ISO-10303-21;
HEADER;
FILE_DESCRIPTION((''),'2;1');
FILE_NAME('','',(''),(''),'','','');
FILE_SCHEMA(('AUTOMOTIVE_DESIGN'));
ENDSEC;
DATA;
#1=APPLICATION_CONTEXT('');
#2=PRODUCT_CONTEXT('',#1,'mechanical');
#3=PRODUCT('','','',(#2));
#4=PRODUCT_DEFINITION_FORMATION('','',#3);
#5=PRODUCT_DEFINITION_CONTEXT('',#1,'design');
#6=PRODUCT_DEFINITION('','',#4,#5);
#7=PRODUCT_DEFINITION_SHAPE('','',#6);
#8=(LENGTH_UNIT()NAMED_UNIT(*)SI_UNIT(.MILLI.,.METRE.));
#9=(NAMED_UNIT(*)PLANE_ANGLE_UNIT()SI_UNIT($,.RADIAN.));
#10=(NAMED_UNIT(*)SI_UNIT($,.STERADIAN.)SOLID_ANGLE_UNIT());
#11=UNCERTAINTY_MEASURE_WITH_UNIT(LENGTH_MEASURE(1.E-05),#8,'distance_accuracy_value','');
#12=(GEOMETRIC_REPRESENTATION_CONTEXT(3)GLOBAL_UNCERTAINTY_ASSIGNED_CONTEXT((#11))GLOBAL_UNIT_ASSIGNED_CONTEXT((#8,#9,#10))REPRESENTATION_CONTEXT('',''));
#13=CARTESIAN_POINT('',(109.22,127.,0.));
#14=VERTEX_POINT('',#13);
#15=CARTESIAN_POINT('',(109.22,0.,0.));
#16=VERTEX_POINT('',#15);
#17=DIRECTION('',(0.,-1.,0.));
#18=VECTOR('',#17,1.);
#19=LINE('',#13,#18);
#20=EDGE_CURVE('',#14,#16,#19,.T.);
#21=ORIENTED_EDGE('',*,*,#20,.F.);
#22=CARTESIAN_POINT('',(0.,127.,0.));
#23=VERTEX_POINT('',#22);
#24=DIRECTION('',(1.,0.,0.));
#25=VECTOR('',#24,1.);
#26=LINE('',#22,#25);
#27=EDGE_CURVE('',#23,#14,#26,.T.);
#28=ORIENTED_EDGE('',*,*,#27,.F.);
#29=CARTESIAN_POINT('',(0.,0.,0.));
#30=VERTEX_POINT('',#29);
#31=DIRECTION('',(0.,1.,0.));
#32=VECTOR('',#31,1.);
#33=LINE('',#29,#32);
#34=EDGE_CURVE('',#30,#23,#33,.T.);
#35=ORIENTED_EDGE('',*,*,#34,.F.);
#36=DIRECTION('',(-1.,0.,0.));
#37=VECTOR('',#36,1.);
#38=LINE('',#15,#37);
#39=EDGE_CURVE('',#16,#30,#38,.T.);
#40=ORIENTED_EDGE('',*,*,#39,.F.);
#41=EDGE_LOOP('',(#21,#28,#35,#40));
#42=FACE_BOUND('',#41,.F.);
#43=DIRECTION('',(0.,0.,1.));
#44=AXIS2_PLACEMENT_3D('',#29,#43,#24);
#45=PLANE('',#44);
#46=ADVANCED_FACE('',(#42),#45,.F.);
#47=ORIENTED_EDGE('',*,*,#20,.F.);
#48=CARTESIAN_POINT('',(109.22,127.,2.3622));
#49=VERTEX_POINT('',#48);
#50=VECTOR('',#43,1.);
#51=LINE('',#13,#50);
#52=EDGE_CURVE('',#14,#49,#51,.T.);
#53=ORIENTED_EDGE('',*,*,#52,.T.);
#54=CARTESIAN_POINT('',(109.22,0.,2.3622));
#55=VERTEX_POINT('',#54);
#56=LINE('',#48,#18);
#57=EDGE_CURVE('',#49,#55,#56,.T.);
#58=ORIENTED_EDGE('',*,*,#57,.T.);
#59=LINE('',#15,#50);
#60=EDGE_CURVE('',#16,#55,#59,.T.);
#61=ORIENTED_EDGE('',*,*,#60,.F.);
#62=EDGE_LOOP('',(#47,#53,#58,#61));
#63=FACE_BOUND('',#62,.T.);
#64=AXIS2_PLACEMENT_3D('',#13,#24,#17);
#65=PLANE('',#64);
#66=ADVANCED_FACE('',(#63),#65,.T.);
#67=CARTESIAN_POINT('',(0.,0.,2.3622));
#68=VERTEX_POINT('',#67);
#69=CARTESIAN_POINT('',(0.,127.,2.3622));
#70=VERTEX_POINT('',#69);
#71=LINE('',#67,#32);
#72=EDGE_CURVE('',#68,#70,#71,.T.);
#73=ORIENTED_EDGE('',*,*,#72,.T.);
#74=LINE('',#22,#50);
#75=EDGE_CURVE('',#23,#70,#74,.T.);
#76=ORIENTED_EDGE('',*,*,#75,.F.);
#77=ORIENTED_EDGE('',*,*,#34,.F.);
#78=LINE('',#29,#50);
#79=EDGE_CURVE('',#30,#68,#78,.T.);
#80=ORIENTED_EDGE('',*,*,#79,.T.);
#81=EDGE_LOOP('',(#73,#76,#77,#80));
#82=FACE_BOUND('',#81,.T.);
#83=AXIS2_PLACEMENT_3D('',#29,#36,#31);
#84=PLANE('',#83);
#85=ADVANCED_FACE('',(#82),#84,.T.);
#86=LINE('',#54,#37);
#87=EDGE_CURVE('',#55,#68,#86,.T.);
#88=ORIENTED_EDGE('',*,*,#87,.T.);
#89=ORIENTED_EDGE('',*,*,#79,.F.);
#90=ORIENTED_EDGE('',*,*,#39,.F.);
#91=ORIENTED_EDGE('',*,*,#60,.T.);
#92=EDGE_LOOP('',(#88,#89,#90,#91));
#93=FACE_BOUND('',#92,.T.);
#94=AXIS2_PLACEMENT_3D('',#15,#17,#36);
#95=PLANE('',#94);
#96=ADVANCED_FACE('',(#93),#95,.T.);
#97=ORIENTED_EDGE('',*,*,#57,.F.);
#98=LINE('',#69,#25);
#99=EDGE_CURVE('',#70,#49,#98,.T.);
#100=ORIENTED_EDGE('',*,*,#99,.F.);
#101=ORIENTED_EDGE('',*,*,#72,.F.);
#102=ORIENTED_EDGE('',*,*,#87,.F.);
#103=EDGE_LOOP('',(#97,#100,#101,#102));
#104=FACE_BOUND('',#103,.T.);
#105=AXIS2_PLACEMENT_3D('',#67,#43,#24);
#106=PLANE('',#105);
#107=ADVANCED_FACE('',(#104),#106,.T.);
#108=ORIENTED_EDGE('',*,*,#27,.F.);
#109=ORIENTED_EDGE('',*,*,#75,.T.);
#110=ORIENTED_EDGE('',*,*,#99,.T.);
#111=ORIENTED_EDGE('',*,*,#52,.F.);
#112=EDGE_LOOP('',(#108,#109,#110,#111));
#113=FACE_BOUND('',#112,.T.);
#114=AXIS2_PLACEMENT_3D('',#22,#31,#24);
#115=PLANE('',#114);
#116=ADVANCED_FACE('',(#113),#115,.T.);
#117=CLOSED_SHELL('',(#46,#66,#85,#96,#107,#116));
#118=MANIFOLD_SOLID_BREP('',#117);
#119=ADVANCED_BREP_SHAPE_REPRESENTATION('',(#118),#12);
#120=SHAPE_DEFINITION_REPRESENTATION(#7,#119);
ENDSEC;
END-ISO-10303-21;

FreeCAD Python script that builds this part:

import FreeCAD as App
import Part
import Sketcher
from FreeCAD import Vector
Q = App.Units.Quantity

doc = App.newDocument("Part")
params = doc.addObject("Spreadsheet::Sheet", "Params")
for row, (alias, value) in enumerate([
    ("sketch1_height", "5 in"),
    ("sketch1_width", "4.3 in"),
    ("pad1_length", "0.093 in"),
], start=1):
    params.set(f"A{row}", alias)
    params.set(f"B{row}", "=" + value)
    params.setAlias(f"B{row}", alias)

body = doc.addObject("PartDesign::Body", "Body")

# Sketch on XY plane
sketch1 = doc.addObject("Sketcher::SketchObject", "Sketch")
body.addObject(sketch1)
sketch1.AttachmentSupport = (doc.XY_Plane, [""])
sketch1.MapMode = "FlatFace"
sketch1.addGeometry(Part.LineSegment(Vector(0, 127, 0), Vector(0, 0, 0)), False)
sketch1.addGeometry(Part.LineSegment(Vector(0, 0, 0), Vector(109, 0, 0)), False)
sketch1.addGeometry(Part.LineSegment(Vector(109, 0, 0), Vector(109, 127, 0)), False)
sketch1.addGeometry(Part.LineSegment(Vector(109, 127, 0), Vector(0, 127, 0)), False)
sketch1.addConstraint(Sketcher.Constraint("Coincident", 0, 2, 1, 1))
sketch1.addConstraint(Sketcher.Constraint("Coincident", 1, 2, 2, 1))
sketch1.addConstraint(Sketcher.Constraint("Coincident", 2, 2, 3, 1))
sketch1.addConstraint(Sketcher.Constraint("Coincident", 3, 2, 0, 1))
sketch1.addConstraint(Sketcher.Constraint("Vertical", 0))
sketch1.addConstraint(Sketcher.Constraint("Horizontal", 1))
sketch1.addConstraint(Sketcher.Constraint("Vertical", 2))
sketch1.addConstraint(Sketcher.Constraint("Horizontal", 3))
sketch1.addConstraint(Sketcher.Constraint("Coincident", 0, 2, -1, 1))
sketch1.addConstraint(Sketcher.Constraint("DistanceY", 0, 2, 0, 1, Q("5 in")))
sketch1.addConstraint(Sketcher.Constraint("DistanceX", 1, 1, 1, 2, Q("4.3 in")))
sketch1.setExpression("Constraints[9]", "Params.sketch1_height")
sketch1.setExpression("Constraints[10]", "Params.sketch1_width")
pad1 = doc.addObject("PartDesign::Pad", "Pad")
body.addObject(pad1)
pad1.Profile = sketch1
pad1.setExpression("Length", "Params.pad1_length")

doc.recompute()
